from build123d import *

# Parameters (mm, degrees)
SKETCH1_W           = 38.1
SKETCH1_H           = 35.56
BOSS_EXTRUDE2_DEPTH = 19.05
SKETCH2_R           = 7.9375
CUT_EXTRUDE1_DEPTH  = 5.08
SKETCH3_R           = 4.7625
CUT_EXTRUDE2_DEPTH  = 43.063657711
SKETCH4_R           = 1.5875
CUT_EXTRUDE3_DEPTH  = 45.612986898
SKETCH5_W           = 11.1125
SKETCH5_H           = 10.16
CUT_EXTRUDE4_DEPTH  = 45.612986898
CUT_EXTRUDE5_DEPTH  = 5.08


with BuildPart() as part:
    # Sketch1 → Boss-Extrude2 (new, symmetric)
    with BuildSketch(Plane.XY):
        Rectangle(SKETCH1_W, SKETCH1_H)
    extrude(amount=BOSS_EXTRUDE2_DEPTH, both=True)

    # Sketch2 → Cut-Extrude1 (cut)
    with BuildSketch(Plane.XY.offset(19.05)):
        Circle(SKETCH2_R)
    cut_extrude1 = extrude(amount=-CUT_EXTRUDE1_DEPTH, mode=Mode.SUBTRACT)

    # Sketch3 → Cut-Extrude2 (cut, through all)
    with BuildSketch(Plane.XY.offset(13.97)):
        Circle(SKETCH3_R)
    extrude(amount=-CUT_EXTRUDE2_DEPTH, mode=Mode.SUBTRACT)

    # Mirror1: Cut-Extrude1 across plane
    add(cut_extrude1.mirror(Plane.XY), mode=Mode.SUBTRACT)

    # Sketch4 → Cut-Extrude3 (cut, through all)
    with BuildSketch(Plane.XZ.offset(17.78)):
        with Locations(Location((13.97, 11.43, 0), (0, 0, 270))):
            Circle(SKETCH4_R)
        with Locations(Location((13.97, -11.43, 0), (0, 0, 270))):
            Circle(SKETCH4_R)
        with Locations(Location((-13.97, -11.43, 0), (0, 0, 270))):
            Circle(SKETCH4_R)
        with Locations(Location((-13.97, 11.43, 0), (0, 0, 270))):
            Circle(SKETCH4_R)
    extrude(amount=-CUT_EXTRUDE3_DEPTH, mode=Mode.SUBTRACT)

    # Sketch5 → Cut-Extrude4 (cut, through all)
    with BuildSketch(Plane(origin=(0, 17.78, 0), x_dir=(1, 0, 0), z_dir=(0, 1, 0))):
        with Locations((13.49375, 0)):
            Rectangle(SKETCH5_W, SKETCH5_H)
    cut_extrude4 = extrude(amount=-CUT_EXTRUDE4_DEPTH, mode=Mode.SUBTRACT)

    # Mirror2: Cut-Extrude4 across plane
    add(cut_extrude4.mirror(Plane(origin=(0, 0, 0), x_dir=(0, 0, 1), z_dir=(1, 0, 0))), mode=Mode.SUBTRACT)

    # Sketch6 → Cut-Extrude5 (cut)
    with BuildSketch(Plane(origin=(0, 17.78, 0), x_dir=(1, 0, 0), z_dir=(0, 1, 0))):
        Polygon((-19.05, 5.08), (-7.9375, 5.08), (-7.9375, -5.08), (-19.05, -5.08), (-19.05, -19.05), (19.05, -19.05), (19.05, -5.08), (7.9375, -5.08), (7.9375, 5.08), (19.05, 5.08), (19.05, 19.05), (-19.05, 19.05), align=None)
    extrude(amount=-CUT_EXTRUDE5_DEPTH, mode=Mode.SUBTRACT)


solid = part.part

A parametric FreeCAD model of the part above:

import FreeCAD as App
import Part
import Sketcher
from FreeCAD import Vector
Q = App.Units.Quantity


def add_polygon(sketch, points):
    """Adds a closed chain of lines whose ends are joined by coincident constraints."""
    first, n = sketch.GeometryCount, len(points)
    for a, b in zip(points, points[1:] + points[:1]):
        sketch.addGeometry(Part.LineSegment(App.Vector(*a, 0), App.Vector(*b, 0)), False)
    for i in range(n):
        sketch.addConstraint(Sketcher.Constraint("Coincident", first + i, 2, first + (i + 1) % n, 1))

doc = App.newDocument("Part")
body = doc.addObject("PartDesign::Body", "Body")

# Sketch on XY plane
sketch1 = body.newObject("Sketcher::SketchObject", "Sketch")
sketch1.AttachmentSupport = (doc.getObject("XY_Plane"), [""])
sketch1.MapMode = "FlatFace"
add_polygon(sketch1, [(-19, 18), (-19, -18), (19, -18), (19, 18)])  # lines 0-3
sketch1.addConstraint([
    Sketcher.Constraint("Vertical", 0),
    Sketcher.Constraint("Horizontal", 1),
    Sketcher.Constraint("Vertical", 2),
    Sketcher.Constraint("Horizontal", 3),
    Sketcher.Constraint("Symmetric", 0, 2, 2, 2, -1, 1),
    Sketcher.Constraint("DistanceX", 1, 1, 1, 2, Q("1.5 in")),
    Sketcher.Constraint("DistanceY", 0, 2, 0, 1, Q("1.4 in")),
])
pad1 = body.newObject("PartDesign::Pad", "Pad")
pad1.Profile = sketch1
pad1.Length = Q("1.5 in")
pad1.Midplane = True

# Sketch on XY plane
sketch2 = body.newObject("Sketcher::SketchObject", "Sketch001")
sketch2.AttachmentSupport = (doc.getObject("XY_Plane"), [""])
sketch2.MapMode = "FlatFace"
sketch2.AttachmentOffset = App.Placement(Vector(0, 0, 0.75 * 25.4), App.Rotation())
sketch2.addGeometry(Part.Circle(Vector(0, 0, 0), Vector(0, 0, 1), 8), False)
sketch2.addConstraint([
    Sketcher.Constraint("Coincident", 0, 3, -1, 1),
    Sketcher.Constraint("Diameter", 0, Q("0.625 in")),
])
pocket1 = body.newObject("PartDesign::Pocket", "Pocket")
pocket1.Profile = sketch2
pocket1.Length = Q("0.2 in")

# Sketch on XY plane
sketch3 = body.newObject("Sketcher::SketchObject", "Sketch002")
sketch3.AttachmentSupport = (doc.getObject("XY_Plane"), [""])
sketch3.MapMode = "FlatFace"
sketch3.AttachmentOffset = App.Placement(Vector(0, 0, 0.55 * 25.4), App.Rotation())
sketch3.addGeometry(Part.Circle(Vector(0, 0, 0), Vector(0, 0, 1), 4.8), False)
sketch3.addConstraint([
    Sketcher.Constraint("Coincident", 0, 3, -1, 1),
    Sketcher.Constraint("Diameter", 0, Q("0.375 in")),
])
pocket2 = body.newObject("PartDesign::Pocket", "Pocket001")
pocket2.Profile = sketch3
pocket2.Type = "ThroughAll"
doc.recompute()

mirrored = body.newObject("PartDesign::Mirrored", "Mirrored")
mirrored.Originals = [pocket1]
mirrored.MirrorPlane = (doc.getObject("XY_Plane"), [""])
body.Tip = mirrored

# Sketch on XZ plane
sketch4 = body.newObject("Sketcher::SketchObject", "Sketch003")
sketch4.AttachmentSupport = (doc.getObject("XZ_Plane"), [""])
sketch4.MapMode = "FlatFace"
sketch4.AttachmentOffset = App.Placement(Vector(0, 0, 0.7 * 25.4), App.Rotation())
sketch4.addGeometry([
    Part.Circle(Vector(14, 11.4, 0), Vector(0, 0, 1), 1.6),
    Part.Circle(Vector(14, -11.4, 0), Vector(0, 0, 1), 1.6),
    Part.Circle(Vector(-14, -11.4, 0), Vector(0, 0, 1), 1.6),
    Part.Circle(Vector(-14, 11.4, 0), Vector(0, 0, 1), 1.6),
], False)
sketch4.addConstraint([
    Sketcher.Constraint("Equal", 0, 1),
    Sketcher.Constraint("Equal", 1, 2),
    Sketcher.Constraint("Equal", 2, 3),
    Sketcher.Constraint("Symmetric", 0, 3, 2, 3, -1, 1),
    Sketcher.Constraint("Symmetric", 1, 3, 3, 3, -1, 1),
    Sketcher.Constraint("Symmetric", 1, 3, 2, 3, -2),
    Sketcher.Constraint("Diameter", 0, Q("0.125 in")),
    Sketcher.Constraint("DistanceY", 1, 3, 0, 3, Q("0.9 in")),
    Sketcher.Constraint("DistanceX", 2, 3, 1, 3, Q("1.1 in")),
])
pocket3 = body.newObject("PartDesign::Pocket", "Pocket002")
pocket3.Profile = sketch4
pocket3.Type = "ThroughAll"

# Sketch on XZ plane
sketch5 = body.newObject("Sketcher::SketchObject", "Sketch004")
sketch5.AttachmentSupport = (doc.getObject("XZ_Plane"), [""])
sketch5.MapMode = "FlatFace"
sketch5.AttachmentOffset = App.Placement(Vector(0, 0, -0.7 * 25.4), App.Rotation())
add_polygon(sketch5, [(8, -5), (8, 5), (19, 5), (19, -5)])  # lines 0-3
sketch5.addConstraint([
    Sketcher.Constraint("Vertical", 0),
    Sketcher.Constraint("Horizontal", 1),
    Sketcher.Constraint("Vertical", 2),
    Sketcher.Constraint("Horizontal", 3),
    Sketcher.Constraint("DistanceY", 0, 1, 0, 2, Q("0.4 in")),
    Sketcher.Constraint("DistanceY", -1, 1, 0, 2, Q("0.2 in")),
    Sketcher.Constraint("DistanceX", 1, 1, 1, 2, Q("0.4375 in")),
    Sketcher.Constraint("DistanceX", -1, 1, 1, 2, Q("0.75 in")),
])
pocket4 = body.newObject("PartDesign::Pocket", "Pocket003")
pocket4.Profile = sketch5
pocket4.Type = "ThroughAll"
pocket4.Reversed = True
doc.recompute()

mirrored2 = body.newObject("PartDesign::Mirrored", "Mirrored001")
mirrored2.Originals = [pocket4]
mirrored2.MirrorPlane = (doc.getObject("YZ_Plane"), [""])
body.Tip = mirrored2

# Sketch on XZ plane
sketch6 = body.newObject("Sketcher::SketchObject", "Sketch005")
sketch6.AttachmentSupport = (doc.getObject("XZ_Plane"), [""])
sketch6.MapMode = "FlatFace"
sketch6.AttachmentOffset = App.Placement(Vector(0, 0, -0.7 * 25.4), App.Rotation())
add_polygon(sketch6, [(-19, -5), (-8, -5), (-8, 5), (-19, 5), (-19, 19), (19, 19), (19, 5), (8, 5), (8, -5), (19, -5), (19, -19), (-19, -19)])  # lines 0-11
sketch6.addConstraint([
    Sketcher.Constraint("Horizontal", 0),
    Sketcher.Constraint("Vertical", 1),
    Sketcher.Constraint("Horizontal", 2),
    Sketcher.Constraint("Vertical", 3),
    Sketcher.Constraint("Horizontal", 4),
    Sketcher.Constraint("Vertical", 5),
    Sketcher.Constraint("Horizontal", 6),
    Sketcher.Constraint("Vertical", 7),
    Sketcher.Constraint("Horizontal", 8),
    Sketcher.Constraint("Vertical", 9),
    Sketcher.Constraint("Horizontal", 10),
    Sketcher.Constraint("Vertical", 11),
    Sketcher.Constraint("Symmetric", 0, 2, 6, 2, -1, 1),
    Sketcher.Constraint("Symmetric", 2, 2, 8, 2, -1, 1),
    Sketcher.Constraint("Symmetric", 4, 2, 10, 2, -1, 1),
    Sketcher.Constraint("Symmetric", 2, 2, 5, 2, -2),
    Sketcher.Constraint("DistanceX", 4, 1, 4, 2, Q("1.5 in")),
    Sketcher.Constraint("DistanceY", 1, 1, 1, 2, Q("0.4 in")),
    Sketcher.Constraint("DistanceY", 3, 1, 3, 2, Q("0.55 in")),
    Sketcher.Constraint("DistanceX", 0, 1, 0, 2, Q("0.4375 in")),
])
pocket5 = body.newObject("PartDesign::Pocket", "Pocket004")
pocket5.Profile = sketch6
pocket5.Length = Q("0.2 in")
pocket5.Reversed = True

doc.recompute()
